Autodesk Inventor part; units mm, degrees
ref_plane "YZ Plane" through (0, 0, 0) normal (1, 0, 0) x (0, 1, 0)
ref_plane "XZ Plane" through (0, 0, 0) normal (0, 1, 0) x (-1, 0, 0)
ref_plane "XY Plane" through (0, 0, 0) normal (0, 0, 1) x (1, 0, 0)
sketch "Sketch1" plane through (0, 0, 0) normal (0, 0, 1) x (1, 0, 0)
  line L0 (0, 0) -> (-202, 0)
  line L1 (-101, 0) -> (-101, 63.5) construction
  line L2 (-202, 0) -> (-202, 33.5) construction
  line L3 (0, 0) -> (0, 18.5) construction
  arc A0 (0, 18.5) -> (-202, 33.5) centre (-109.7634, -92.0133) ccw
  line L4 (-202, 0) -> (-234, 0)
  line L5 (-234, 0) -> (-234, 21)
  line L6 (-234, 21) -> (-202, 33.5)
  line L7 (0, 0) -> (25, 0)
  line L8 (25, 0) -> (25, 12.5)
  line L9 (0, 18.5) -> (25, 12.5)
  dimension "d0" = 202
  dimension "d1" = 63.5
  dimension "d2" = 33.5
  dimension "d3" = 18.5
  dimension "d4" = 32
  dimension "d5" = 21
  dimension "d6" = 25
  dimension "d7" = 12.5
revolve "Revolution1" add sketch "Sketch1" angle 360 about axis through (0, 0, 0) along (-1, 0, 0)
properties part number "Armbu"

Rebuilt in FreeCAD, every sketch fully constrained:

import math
import FreeCAD as App
import Part
import Sketcher
from FreeCAD import Vector

doc = App.newDocument("Part")
body = doc.addObject("PartDesign::Body", "Body")

# Sketch on XY plane
sketch1 = doc.addObject("Sketcher::SketchObject", "Sketch")
body.addObject(sketch1)
sketch1.AttachmentSupport = (doc.XY_Plane, [""])
sketch1.MapMode = "FlatFace"
sketch1.addGeometry([
    Part.LineSegment(Vector(-234, 0, 0), Vector(25, 0, 0)),  # 0
    Part.LineSegment(Vector(25, 0, 0), Vector(25, 12, 0)),  # 1
    Part.LineSegment(Vector(25, 12, 0), Vector(0, 18, 0)),  # 2
    Part.ArcOfCircle(Part.Circle(Vector(-110, -92, 0), Vector(0, 0, 1), 156), math.radians(45), math.radians(126)),  # 3
    Part.LineSegment(Vector(-202, 34, 0), Vector(-234, 21, 0)),  # 4
    Part.LineSegment(Vector(-234, 21, 0), Vector(-234, 0, 0)),  # 5
], False)
sketch1.addConstraint([
    Sketcher.Constraint("Coincident", 0, 2, 1, 1),
    Sketcher.Constraint("Coincident", 1, 2, 2, 1),
    Sketcher.Constraint("Coincident", 2, 2, 3, 1),
    Sketcher.Constraint("Coincident", 3, 2, 4, 1),
    Sketcher.Constraint("Coincident", 4, 2, 5, 1),
    Sketcher.Constraint("Coincident", 5, 2, 0, 1),
    Sketcher.Constraint("Horizontal", 0),
    Sketcher.Constraint("Vertical", 1),
    Sketcher.Constraint("Vertical", 5),
    Sketcher.Constraint("PointOnObject", 0, 2, -1),
    Sketcher.Constraint("PointOnObject", 2, 2, -2),
    Sketcher.Constraint("DistanceY", 5, 2, 5, 1, 21.0),
    Sketcher.Constraint("DistanceY", 1, 1, 1, 2, 12.5),
    Sketcher.Constraint("DistanceX", -1, 1, 0, 2, 25.0),
    Sketcher.Constraint("DistanceX", 3, 2, -1, 1, 202.0),
    Sketcher.Constraint("DistanceY", 1, 2, 3, 2, 21.0),
    Sketcher.Constraint("DistanceX", 4, 2, 3, 2, 32.0),
    Sketcher.Constraint("DistanceY", -1, 1, 2, 2, 18.5),
    Sketcher.Constraint("Radius", 3, 155.76),
])
revolution = doc.addObject("PartDesign::Revolution", "Revolution")
body.addObject(revolution)
revolution.Profile = sketch1
revolution.ReferenceAxis = (sketch1, ["H_Axis"])
revolution.Angle = 360

doc.recompute()
